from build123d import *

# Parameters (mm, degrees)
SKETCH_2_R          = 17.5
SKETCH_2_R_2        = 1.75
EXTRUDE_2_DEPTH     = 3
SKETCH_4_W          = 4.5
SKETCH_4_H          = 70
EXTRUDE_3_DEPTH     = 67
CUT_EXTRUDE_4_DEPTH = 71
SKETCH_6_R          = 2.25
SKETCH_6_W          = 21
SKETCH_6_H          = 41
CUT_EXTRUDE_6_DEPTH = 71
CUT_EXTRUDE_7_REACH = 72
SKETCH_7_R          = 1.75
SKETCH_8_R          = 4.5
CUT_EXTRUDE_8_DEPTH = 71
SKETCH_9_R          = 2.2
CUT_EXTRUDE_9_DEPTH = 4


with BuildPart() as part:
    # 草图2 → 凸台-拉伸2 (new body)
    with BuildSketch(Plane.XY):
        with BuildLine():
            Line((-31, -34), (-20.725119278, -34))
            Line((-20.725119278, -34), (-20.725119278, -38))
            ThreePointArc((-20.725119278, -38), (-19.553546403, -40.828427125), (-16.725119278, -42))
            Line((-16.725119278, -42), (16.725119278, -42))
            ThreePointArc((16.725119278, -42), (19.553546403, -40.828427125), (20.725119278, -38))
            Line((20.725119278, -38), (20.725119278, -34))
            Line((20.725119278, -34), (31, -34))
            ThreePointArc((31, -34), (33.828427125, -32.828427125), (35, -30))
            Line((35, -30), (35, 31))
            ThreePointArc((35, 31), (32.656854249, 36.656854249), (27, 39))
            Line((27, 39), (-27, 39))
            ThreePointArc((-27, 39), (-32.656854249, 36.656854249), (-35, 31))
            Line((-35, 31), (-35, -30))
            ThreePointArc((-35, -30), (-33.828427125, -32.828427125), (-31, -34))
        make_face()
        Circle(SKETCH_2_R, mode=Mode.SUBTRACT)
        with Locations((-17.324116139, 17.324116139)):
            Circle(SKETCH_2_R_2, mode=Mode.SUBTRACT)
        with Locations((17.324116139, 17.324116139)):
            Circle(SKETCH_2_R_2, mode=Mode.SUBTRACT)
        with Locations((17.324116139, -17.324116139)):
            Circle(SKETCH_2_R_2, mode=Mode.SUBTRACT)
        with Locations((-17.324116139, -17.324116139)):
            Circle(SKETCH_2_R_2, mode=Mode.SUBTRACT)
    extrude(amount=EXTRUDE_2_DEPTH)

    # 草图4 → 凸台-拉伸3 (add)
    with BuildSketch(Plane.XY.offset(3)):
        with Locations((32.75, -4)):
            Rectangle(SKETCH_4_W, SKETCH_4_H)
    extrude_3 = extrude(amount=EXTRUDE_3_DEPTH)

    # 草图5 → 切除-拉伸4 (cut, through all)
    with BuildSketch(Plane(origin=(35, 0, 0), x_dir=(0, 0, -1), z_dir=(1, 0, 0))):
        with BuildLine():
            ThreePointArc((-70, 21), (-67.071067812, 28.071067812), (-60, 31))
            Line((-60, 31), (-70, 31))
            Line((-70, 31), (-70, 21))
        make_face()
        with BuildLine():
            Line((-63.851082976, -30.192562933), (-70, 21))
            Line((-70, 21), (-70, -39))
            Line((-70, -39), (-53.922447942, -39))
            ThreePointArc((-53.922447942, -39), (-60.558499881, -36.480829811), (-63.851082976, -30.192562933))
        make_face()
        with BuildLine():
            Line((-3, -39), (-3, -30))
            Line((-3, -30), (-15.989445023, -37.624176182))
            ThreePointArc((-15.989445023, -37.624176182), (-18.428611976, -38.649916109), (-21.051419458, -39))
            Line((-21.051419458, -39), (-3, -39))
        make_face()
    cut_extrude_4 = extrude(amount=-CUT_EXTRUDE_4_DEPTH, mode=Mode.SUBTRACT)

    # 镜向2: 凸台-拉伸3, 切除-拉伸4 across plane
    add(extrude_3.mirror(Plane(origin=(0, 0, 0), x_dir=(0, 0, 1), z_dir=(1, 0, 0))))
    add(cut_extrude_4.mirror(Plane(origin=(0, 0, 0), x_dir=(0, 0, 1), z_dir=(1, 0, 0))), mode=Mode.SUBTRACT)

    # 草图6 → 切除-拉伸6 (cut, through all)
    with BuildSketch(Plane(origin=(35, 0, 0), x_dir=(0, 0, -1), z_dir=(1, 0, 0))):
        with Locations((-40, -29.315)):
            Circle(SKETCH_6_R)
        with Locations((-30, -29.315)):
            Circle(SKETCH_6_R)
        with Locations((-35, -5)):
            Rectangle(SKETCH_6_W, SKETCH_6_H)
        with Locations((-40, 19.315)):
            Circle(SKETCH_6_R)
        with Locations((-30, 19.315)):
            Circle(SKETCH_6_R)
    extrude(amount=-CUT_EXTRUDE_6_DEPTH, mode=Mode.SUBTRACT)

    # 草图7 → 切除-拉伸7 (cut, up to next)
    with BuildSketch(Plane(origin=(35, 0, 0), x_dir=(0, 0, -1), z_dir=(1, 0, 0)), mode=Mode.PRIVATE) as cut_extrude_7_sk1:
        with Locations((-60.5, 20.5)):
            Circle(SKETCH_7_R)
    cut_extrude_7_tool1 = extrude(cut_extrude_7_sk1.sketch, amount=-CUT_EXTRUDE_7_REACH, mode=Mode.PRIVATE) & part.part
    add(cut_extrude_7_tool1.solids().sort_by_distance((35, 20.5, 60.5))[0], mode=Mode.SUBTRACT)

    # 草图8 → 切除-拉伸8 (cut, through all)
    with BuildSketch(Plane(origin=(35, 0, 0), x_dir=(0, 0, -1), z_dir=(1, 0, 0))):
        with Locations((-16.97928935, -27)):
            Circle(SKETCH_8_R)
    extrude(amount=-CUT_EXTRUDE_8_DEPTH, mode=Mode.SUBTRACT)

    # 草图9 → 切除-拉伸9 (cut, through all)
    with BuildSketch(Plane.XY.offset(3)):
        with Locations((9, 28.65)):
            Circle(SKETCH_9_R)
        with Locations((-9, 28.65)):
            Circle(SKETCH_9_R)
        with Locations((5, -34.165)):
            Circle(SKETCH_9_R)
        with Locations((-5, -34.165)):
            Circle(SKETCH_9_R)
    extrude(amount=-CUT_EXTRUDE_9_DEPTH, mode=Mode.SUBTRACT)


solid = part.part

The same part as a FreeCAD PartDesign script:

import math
import FreeCAD as App
import Part
import Sketcher

V = App.Vector


def add_polygon(sketch, points):
    """Adds a closed chain of lines whose ends are joined by coincident constraints."""
    first, n = sketch.GeometryCount, len(points)
    for a, b in zip(points, points[1:] + points[:1]):
        sketch.addGeometry(Part.LineSegment(App.Vector(*a, 0), App.Vector(*b, 0)), False)
    for i in range(n):
        sketch.addConstraint(Sketcher.Constraint("Coincident", first + i, 2, first + (i + 1) % n, 1))

doc = App.newDocument("Part")
body = doc.addObject("PartDesign::Body", "Body")

sketch1 = doc.addObject("Sketcher::SketchObject", "Sketch")
body.addObject(sketch1)
sketch1.AttachmentSupport = (doc.XY_Plane, [""])
sketch1.MapMode = "FlatFace"
sketch1.addGeometry([
    Part.LineSegment(V(-31, -34, 0), V(-20.7, -34, 0)),
    Part.LineSegment(V(-20.7, -34, 0), V(-20.7, -38, 0)),
    Part.ArcOfCircle(Part.Circle(V(-16.7, -38, 0), V(0, 0, 1), 4), math.radians(180), math.radians(270)),
    Part.LineSegment(V(-16.7, -42, 0), V(16.7, -42, 0)),
    Part.ArcOfCircle(Part.Circle(V(16.7, -38, 0), V(0, 0, 1), 4), math.radians(-90), math.radians(0)),
    Part.LineSegment(V(20.7, -38, 0), V(20.7, -34, 0)),
    Part.LineSegment(V(20.7, -34, 0), V(31, -34, 0)),
    Part.ArcOfCircle(Part.Circle(V(31, -30, 0), V(0, 0, 1), 4), math.radians(-90), math.radians(0)),
    Part.LineSegment(V(35, -30, 0), V(35, 31, 0)),
    Part.ArcOfCircle(Part.Circle(V(27, 31, 0), V(0, 0, 1), 8), math.radians(0), math.radians(90)),
    Part.LineSegment(V(27, 39, 0), V(-27, 39, 0)),
    Part.ArcOfCircle(Part.Circle(V(-27, 31, 0), V(0, 0, 1), 8), math.radians(90), math.radians(180)),
    Part.LineSegment(V(-35, 31, 0), V(-35, -30, 0)),
    Part.ArcOfCircle(Part.Circle(V(-31, -30, 0), V(0, 0, 1), 4), math.radians(180), math.radians(270)),
    Part.Circle(V(-17.3, -17.3, 0), V(0, 0, 1), 1.8),
    Part.Circle(V(17.3, -17.3, 0), V(0, 0, 1), 1.8),
    Part.Circle(V(-17.3, 17.3, 0), V(0, 0, 1), 1.8),
    Part.Circle(V(0, 0, 0), V(0, 0, 1), 17.5),
    Part.Circle(V(17.3, 17.3, 0), V(0, 0, 1), 1.8),
], False)
sketch1.addConstraint([
    Sketcher.Constraint("Coincident", 0, 2, 1, 1),
    Sketcher.Constraint("Tangent", 1, 2, 2, 1),
    Sketcher.Constraint("Tangent", 2, 2, 3, 1),
    Sketcher.Constraint("Tangent", 3, 2, 4, 1),
    Sketcher.Constraint("Tangent", 4, 2, 5, 1),
    Sketcher.Constraint("Coincident", 5, 2, 6, 1),
    Sketcher.Constraint("Tangent", 6, 2, 7, 1),
    Sketcher.Constraint("Tangent", 7, 2, 8, 1),
    Sketcher.Constraint("Tangent", 8, 2, 9, 1),
    Sketcher.Constraint("Tangent", 9, 2, 10, 1),
    Sketcher.Constraint("Tangent", 10, 2, 11, 1),
    Sketcher.Constraint("Tangent", 11, 2, 12, 1),
    Sketcher.Constraint("Tangent", 12, 2, 13, 1),
    Sketcher.Constraint("Tangent", 13, 2, 0, 1),
    Sketcher.Constraint("Horizontal", 0),
    Sketcher.Constraint("Vertical", 1),
    Sketcher.Constraint("Horizontal", 3),
    Sketcher.Constraint("Vertical", 5),
    Sketcher.Constraint("Horizontal", 6),
    Sketcher.Constraint("Vertical", 8),
    Sketcher.Constraint("Horizontal", 10),
    Sketcher.Constraint("Vertical", 12),
    Sketcher.Constraint("Coincident", 17, 3, -1, 1),
    Sketcher.Constraint("Equal", 2, 4),
    Sketcher.Constraint("Equal", 4, 7),
    Sketcher.Constraint("Equal", 9, 11),
    Sketcher.Constraint("Equal", 7, 13),
    Sketcher.Constraint("Equal", 14, 15),
    Sketcher.Constraint("Equal", 15, 16),
    Sketcher.Constraint("Equal", 16, 18),
    Sketcher.Constraint("Symmetric", 15, 3, 16, 3, -1, 1),
    Sketcher.Constraint("Symmetric", 14, 3, 18, 3, -1, 1),
    Sketcher.Constraint("Symmetric", 7, 3, 13, 3, -2),
    Sketcher.Constraint("Symmetric", 14, 3, 15, 3, -2),
    Sketcher.Constraint("Equal", 0, 6),
    Sketcher.Constraint("Diameter", 17, 35.0),
    Sketcher.Constraint("Radius", 2, 4.0),
    Sketcher.Constraint("Radius", 9, 8.0),
    Sketcher.Constraint("Diameter", 14, 3.5),
    Sketcher.Constraint("DistanceX", 10, 2, 10, 1, 54.0),
    Sketcher.Constraint("DistanceY", 1, 2, 1, 1, 4.0),
    Sketcher.Constraint("DistanceY", 8, 1, 8, 2, 61.0),
    Sketcher.Constraint("DistanceY", 2, 3, -1, 1, 38.0),
    Sketcher.Constraint("DistanceX", 0, 1, 0, 2, 10.274881),
    Sketcher.Constraint("DistanceX", 14, 3, -1, 1, 17.324116),
    Sketcher.Constraint("DistanceY", 14, 3, -1, 1, 17.324116),
])
pad1 = doc.addObject("PartDesign::Pad", "Pad")
body.addObject(pad1)
pad1.Profile = sketch1
pad1.Length = 3

sketch2 = doc.addObject("Sketcher::SketchObject", "Sketch001")
body.addObject(sketch2)
sketch2.AttachmentSupport = (doc.XY_Plane, [""])
sketch2.MapMode = "FlatFace"
sketch2.AttachmentOffset = App.Placement(V(0, 0, 3), App.Rotation())
add_polygon(sketch2, [(30.5, 31), (30.5, -39), (35, -39), (35, 31)])
sketch2.addConstraint([
    Sketcher.Constraint("Vertical", 0),
    Sketcher.Constraint("Horizontal", 1),
    Sketcher.Constraint("Vertical", 2),
    Sketcher.Constraint("Horizontal", 3),
    Sketcher.Constraint("DistanceY", 0, 2, 0, 1, 70.0),
    Sketcher.Constraint("DistanceX", 1, 1, 1, 2, 4.5),
    Sketcher.Constraint("DistanceY", 0, 2, -1, 1, 39.0),
    Sketcher.Constraint("DistanceX", -1, 1, 1, 2, 35.0),
])
pad2 = doc.addObject("PartDesign::Pad", "Pad001")
body.addObject(pad2)
pad2.Profile = sketch2
pad2.Length = 67

sketch3 = doc.addObject("Sketcher::SketchObject", "Sketch002")
body.addObject(sketch3)
sketch3.AttachmentSupport = (doc.YZ_Plane, [""])
sketch3.MapMode = "FlatFace"
sketch3.AttachmentOffset = App.Placement(V(0, 0, 35), App.Rotation())
sketch3.addGeometry([
    Part.ArcOfCircle(Part.Circle(V(21, 60, 0), V(0, 0, 1), 10), math.radians(0), math.radians(90)),
    Part.LineSegment(V(31, 60, 0), V(31, 70, 0)),
    Part.LineSegment(V(31, 70, 0), V(21, 70, 0)),
    Part.LineSegment(V(-30, 64, 0), V(21, 70, 0)),
    Part.LineSegment(V(21, 70, 0), V(-39, 70, 0)),
    Part.LineSegment(V(-39, 70, 0), V(-39, 54, 0)),
    Part.ArcOfCircle(Part.Circle(V(-29, 54, 0), V(0, 0, 1), 10), math.radians(97), math.radians(180)),
    Part.LineSegment(V(-39, 3, 0), V(-30, 3, 0)),
    Part.LineSegment(V(-30, 3, 0), V(-38, 16, 0)),
    Part.ArcOfCircle(Part.Circle(V(-29, 21, 0), V(0, 0, 1), 10), math.radians(180), math.radians(210)),
    Part.LineSegment(V(-39, 21, 0), V(-39, 3, 0)),
], False)
sketch3.addConstraint([
    Sketcher.Constraint("Tangent", 0, 1, 1, 1),
    Sketcher.Constraint("Coincident", 1, 2, 2, 1),
    Sketcher.Constraint("Tangent", 2, 2, 0, 2),
    Sketcher.Constraint("Coincident", 3, 2, 4, 1),
    Sketcher.Constraint("Coincident", 4, 2, 5, 1),
    Sketcher.Constraint("Tangent", 5, 2, 6, 2),
    Sketcher.Constraint("Tangent", 6, 1, 3, 1),
    Sketcher.Constraint("Coincident", 7, 2, 8, 1),
    Sketcher.Constraint("Tangent", 8, 2, 9, 2),
    Sketcher.Constraint("Tangent", 9, 1, 10, 1),
    Sketcher.Constraint("Coincident", 10, 2, 7, 1),
    Sketcher.Constraint("Vertical", 1),
    Sketcher.Constraint("Horizontal", 2),
    Sketcher.Constraint("Horizontal", 4),
    Sketcher.Constraint("Vertical", 5),
    Sketcher.Constraint("Horizontal", 7),
    Sketcher.Constraint("Vertical", 10),
    Sketcher.Constraint("Coincident", 3, 2, 2, 2),
    Sketcher.Constraint("Equal", 0, 6),
    Sketcher.Constraint("Equal", 6, 9),
    Sketcher.Constraint("Vertical", 6, 3, 9, 3),
    Sketcher.Constraint("Radius", 0, 10.0),
    Sketcher.Constraint("DistanceX", 4, 2, 4, 1, 60.0),
    Sketcher.Constraint("DistanceX", 7, 1, 7, 2, 9.0),
    Sketcher.Constraint("DistanceX", -1, 1, 0, 3, 21.0),
    Sketcher.Constraint("DistanceY", -1, 1, 0, 3, 60.0),
    Sketcher.Constraint("DistanceY", -1, 1, 7, 2, 3.0),
    Sketcher.Constraint("DistanceY", 10, 2, 10, 1, 18.051419),
    Sketcher.Constraint("DistanceY", 5, 2, 5, 1, 16.077552),
])
pocket1 = doc.addObject("PartDesign::Pocket", "Pocket")
body.addObject(pocket1)
pocket1.Profile = sketch3
pocket1.Type = "ThroughAll"
doc.recompute()

mirrored = doc.addObject("PartDesign::Mirrored", "Mirrored")
body.addObject(mirrored)
mirrored.Originals = [pad2, pocket1]
mirrored.MirrorPlane = (doc.YZ_Plane, [""])
body.Tip = mirrored

sketch4 = doc.addObject("Sketcher::SketchObject", "Sketch003")
body.addObject(sketch4)
sketch4.AttachmentSupport = (doc.YZ_Plane, [""])
sketch4.MapMode = "FlatFace"
sketch4.AttachmentOffset = App.Placement(V(0, 0, 35), App.Rotation())
sketch4.addGeometry(Part.Circle(V(-29.3, 40, 0), V(0, 0, 1), 2.2), False)
sketch4.addGeometry(Part.Circle(V(-29.3, 30, 0), V(0, 0, 1), 2.2), False)
add_polygon(sketch4, [(15.5, 45.5), (-25.5, 45.5), (-25.5, 24.5), (15.5, 24.5)])
sketch4.addGeometry(Part.Circle(V(19.3, 40, 0), V(0, 0, 1), 2.2), False)
sketch4.addGeometry(Part.Circle(V(19.3, 30, 0), V(0, 0, 1), 2.2), False)
sketch4.addConstraint([
    Sketcher.Constraint("Horizontal", 2),
    Sketcher.Constraint("Vertical", 3),
    Sketcher.Constraint("Horizontal", 4),
    Sketcher.Constraint("Vertical", 5),
    Sketcher.Constraint("Equal", 0, 1),
    Sketcher.Constraint("Equal", 1, 6),
    Sketcher.Constraint("Equal", 6, 7),
    Sketcher.Constraint("Horizontal", 0, 3, 6, 3),
    Sketcher.Constraint("Horizontal", 1, 3, 7, 3),
    Sketcher.Constraint("Vertical", 0, 3, 1, 3),
    Sketcher.Constraint("Vertical", 6, 3, 7, 3),
    Sketcher.Constraint("Diameter", 0, 4.5),
    Sketcher.Constraint("DistanceX", 2, 2, 2, 1, 41.0),
    Sketcher.Constraint("DistanceY", 3, 2, 3, 1, 21.0),
    Sketcher.Constraint("DistanceY", -1, 1, 0, 3, 40.0),
    Sketcher.Constraint("DistanceY", -1, 1, 1, 3, 30.0),
    Sketcher.Constraint("DistanceX", 2, 2, -1, 1, 25.5),
    Sketcher.Constraint("DistanceY", -1, 1, 2, 2, 45.5),
    Sketcher.Constraint("DistanceX", 0, 3, 6, 3, 48.63),
    Sketcher.Constraint("DistanceX", 0, 3, -1, 1, 29.315),
])
pocket2 = doc.addObject("PartDesign::Pocket", "Pocket001")
body.addObject(pocket2)
pocket2.Profile = sketch4
pocket2.Type = "ThroughAll"

sketch5 = doc.addObject("Sketcher::SketchObject", "Sketch004")
body.addObject(sketch5)
sketch5.AttachmentSupport = (doc.YZ_Plane, [""])
sketch5.MapMode = "FlatFace"
sketch5.AttachmentOffset = App.Placement(V(0, 0, 35), App.Rotation())
sketch5.addGeometry(Part.Circle(V(20.5, 60.5, 0), V(0, 0, 1), 1.8), False)
sketch5.addConstraint([
    Sketcher.Constraint("Diameter", 0, 3.5),
    Sketcher.Constraint("DistanceX", -1, 1, 0, 3, 20.5),
    Sketcher.Constraint("DistanceY", -1, 1, 0, 3, 60.5),
])
pocket3 = doc.addObject("PartDesign::Pocket", "Pocket002")
body.addObject(pocket3)
pocket3.Profile = sketch5
pocket3.Type = "UpToFirst"

sketch6 = doc.addObject("Sketcher::SketchObject", "Sketch005")
body.addObject(sketch6)
sketch6.AttachmentSupport = (doc.YZ_Plane, [""])
sketch6.MapMode = "FlatFace"
sketch6.AttachmentOffset = App.Placement(V(0, 0, 35), App.Rotation())
sketch6.addGeometry(Part.Circle(V(-27, 17, 0), V(0, 0, 1), 4.5), False)
sketch6.addConstraint([
    Sketcher.Constraint("Diameter", 0, 9.0),
    Sketcher.Constraint("DistanceX", 0, 3, -1, 1, 27.0),
    Sketcher.Constraint("DistanceY", -1, 1, 0, 3, 16.979289),
])
pocket4 = doc.addObject("PartDesign::Pocket", "Pocket003")
body.addObject(pocket4)
pocket4.Profile = sketch6
pocket4.Type = "ThroughAll"

sketch7 = doc.addObject("Sketcher::SketchObject", "Sketch006")
body.addObject(sketch7)
sketch7.AttachmentSupport = (doc.XY_Plane, [""])
sketch7.MapMode = "FlatFace"
sketch7.AttachmentOffset = App.Placement(V(0, 0, 3), App.Rotation())
sketch7.addGeometry([
    Part.Circle(V(9, 28.6, 0), V(0, 0, 1), 2.2),
    Part.Circle(V(-9, 28.6, 0), V(0, 0, 1), 2.2),
    Part.Circle(V(5, -34.2, 0), V(0, 0, 1), 2.2),
    Part.Circle(V(-5, -34.2, 0), V(0, 0, 1), 2.2),
], False)
sketch7.addConstraint([
    Sketcher.Constraint("Equal", 0, 1),
    Sketcher.Constraint("Equal", 1, 2),
    Sketcher.Constraint("Equal", 2, 3),
    Sketcher.Constraint("Symmetric", 0, 3, 1, 3, -2),
    Sketcher.Constraint("Symmetric", 2, 3, 3, 3, -2),
    Sketcher.Constraint("Diameter", 0, 4.4),
    Sketcher.Constraint("DistanceX", -1, 1, 0, 3, 9.0),
    Sketcher.Constraint("DistanceX", -1, 1, 2, 3, 5.0),
    Sketcher.Constraint("DistanceY", -1, 1, 0, 3, 28.65),
    Sketcher.Constraint("DistanceY", 2, 3, -1, 1, 34.165),
])
pocket5 = doc.addObject("PartDesign::Pocket", "Pocket004")
body.addObject(pocket5)
pocket5.Profile = sketch7
pocket5.Type = "ThroughAll"

doc.recompute()
